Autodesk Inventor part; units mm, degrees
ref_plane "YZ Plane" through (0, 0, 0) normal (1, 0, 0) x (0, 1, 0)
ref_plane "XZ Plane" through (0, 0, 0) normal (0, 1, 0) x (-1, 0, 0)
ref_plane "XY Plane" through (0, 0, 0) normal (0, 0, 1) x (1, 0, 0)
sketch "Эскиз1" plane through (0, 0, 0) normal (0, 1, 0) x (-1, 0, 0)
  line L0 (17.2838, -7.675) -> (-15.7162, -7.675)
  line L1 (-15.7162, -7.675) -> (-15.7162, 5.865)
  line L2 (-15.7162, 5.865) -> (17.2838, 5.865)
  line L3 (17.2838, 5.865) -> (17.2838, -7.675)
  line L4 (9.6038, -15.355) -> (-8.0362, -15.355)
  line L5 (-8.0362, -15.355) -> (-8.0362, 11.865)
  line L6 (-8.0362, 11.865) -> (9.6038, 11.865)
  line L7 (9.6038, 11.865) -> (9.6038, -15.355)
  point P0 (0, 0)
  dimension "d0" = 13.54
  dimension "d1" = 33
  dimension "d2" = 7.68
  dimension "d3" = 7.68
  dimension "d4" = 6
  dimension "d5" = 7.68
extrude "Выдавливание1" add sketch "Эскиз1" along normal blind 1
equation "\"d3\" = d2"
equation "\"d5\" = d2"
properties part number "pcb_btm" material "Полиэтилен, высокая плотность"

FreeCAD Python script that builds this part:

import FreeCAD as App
import Part
import Sketcher

V = App.Vector
Q = App.Units.Quantity

doc = App.newDocument("Part")
params = doc.addObject("Spreadsheet::Sheet", "Params")
for row, (alias, value) in enumerate([
    ("sketch1_height", "6 mm"),
    ("sketch1_width", "7.68 mm"),
    ("sketch1_height2", "13.54 mm"),
    ("pad1_length", "1 mm"),
], start=1):
    params.set(f"A{row}", alias)
    params.set(f"B{row}", "=" + value)
    params.setAlias(f"B{row}", alias)

body = doc.addObject("PartDesign::Body", "Body")

sketch1 = doc.addObject("Sketcher::SketchObject", "Sketch")
body.addObject(sketch1)
sketch1.AttachmentSupport = (doc.XZ_Plane, [""])
sketch1.MapMode = "FlatFace"
sketch1.addGeometry(Part.LineSegment(V(-10, -8, 0), V(-17, -8, 0)), False)
sketch1.addGeometry(Part.LineSegment(V(-17, -8, 0), V(-17, 6, 0)), False)
sketch1.addGeometry(Part.LineSegment(V(-17, 6, 0), V(-10, 6, 0)), False)
sketch1.addGeometry(Part.LineSegment(V(-10, 6, 0), V(-10, 12, 0)), False)
sketch1.addGeometry(Part.LineSegment(V(-10, 12, 0), V(8, 12, 0)), False)
sketch1.addGeometry(Part.LineSegment(V(8, 12, 0), V(8, 6, 0)), False)
sketch1.addGeometry(Part.LineSegment(V(8, 6, 0), V(16, 6, 0)), False)
sketch1.addGeometry(Part.LineSegment(V(16, 6, 0), V(16, -8, 0)), False)
sketch1.addGeometry(Part.LineSegment(V(16, -8, 0), V(8, -8, 0)), False)
sketch1.addGeometry(Part.LineSegment(V(8, -8, 0), V(8, -15, 0)), False)
sketch1.addGeometry(Part.LineSegment(V(8, -15, 0), V(-10, -15, 0)), False)
sketch1.addGeometry(Part.LineSegment(V(-10, -15, 0), V(-10, -8, 0)), False)
sketch1.addConstraint(Sketcher.Constraint("Coincident", 0, 2, 1, 1))
sketch1.addConstraint(Sketcher.Constraint("Coincident", 1, 2, 2, 1))
sketch1.addConstraint(Sketcher.Constraint("Coincident", 2, 2, 3, 1))
sketch1.addConstraint(Sketcher.Constraint("Coincident", 3, 2, 4, 1))
sketch1.addConstraint(Sketcher.Constraint("Coincident", 4, 2, 5, 1))
sketch1.addConstraint(Sketcher.Constraint("Coincident", 5, 2, 6, 1))
sketch1.addConstraint(Sketcher.Constraint("Coincident", 6, 2, 7, 1))
sketch1.addConstraint(Sketcher.Constraint("Coincident", 7, 2, 8, 1))
sketch1.addConstraint(Sketcher.Constraint("Coincident", 8, 2, 9, 1))
sketch1.addConstraint(Sketcher.Constraint("Coincident", 9, 2, 10, 1))
sketch1.addConstraint(Sketcher.Constraint("Coincident", 10, 2, 11, 1))
sketch1.addConstraint(Sketcher.Constraint("Coincident", 11, 2, 0, 1))
sketch1.addConstraint(Sketcher.Constraint("Horizontal", 0))
sketch1.addConstraint(Sketcher.Constraint("Vertical", 1))
sketch1.addConstraint(Sketcher.Constraint("Horizontal", 2))
sketch1.addConstraint(Sketcher.Constraint("Vertical", 3))
sketch1.addConstraint(Sketcher.Constraint("Horizontal", 4))
sketch1.addConstraint(Sketcher.Constraint("Vertical", 5))
sketch1.addConstraint(Sketcher.Constraint("Horizontal", 6))
sketch1.addConstraint(Sketcher.Constraint("Vertical", 7))
sketch1.addConstraint(Sketcher.Constraint("Horizontal", 8))
sketch1.addConstraint(Sketcher.Constraint("Vertical", 9))
sketch1.addConstraint(Sketcher.Constraint("Horizontal", 10))
sketch1.addConstraint(Sketcher.Constraint("Vertical", 11))
sketch1.addConstraint(Sketcher.Constraint("Horizontal", 2, 2, 5, 2))
sketch1.addConstraint(Sketcher.Constraint("Horizontal", 0, 2, 7, 2))
sketch1.addConstraint(Sketcher.Constraint("Vertical", 5, 2, 8, 2))
sketch1.addConstraint(Sketcher.Constraint("Vertical", 3, 2, 10, 2))
sketch1.addConstraint(Sketcher.Constraint("Equal", 2, 6))
sketch1.addConstraint(Sketcher.Constraint("Equal", 8, 9))
sketch1.addConstraint(Sketcher.Constraint("DistanceY", 3, 1, 3, 2, Q("6 mm")))
sketch1.addConstraint(Sketcher.Constraint("DistanceX", 1, 2, 6, 2, Q("33 mm")))
sketch1.addConstraint(Sketcher.Constraint("DistanceX", 0, 2, 0, 1, Q("7.68 mm")))
sketch1.addConstraint(Sketcher.Constraint("DistanceY", 1, 1, 1, 2, Q("13.54 mm")))
sketch1.addConstraint(Sketcher.Constraint("DistanceY", 0, 2, -1, 1, Q("7.675 mm")))
sketch1.addConstraint(Sketcher.Constraint("DistanceX", 0, 2, -1, 1, Q("17.2838 mm")))
sketch1.setExpression("Constraints[30]", "Params.sketch1_height")
sketch1.setExpression("Constraints[32]", "Params.sketch1_width")
sketch1.setExpression("Constraints[33]", "Params.sketch1_height2")
pad1 = doc.addObject("PartDesign::Pad", "Pad")
body.addObject(pad1)
pad1.Profile = sketch1
pad1.setExpression("Length", "Params.pad1_length")
pad1.Reversed = True

doc.recompute()
